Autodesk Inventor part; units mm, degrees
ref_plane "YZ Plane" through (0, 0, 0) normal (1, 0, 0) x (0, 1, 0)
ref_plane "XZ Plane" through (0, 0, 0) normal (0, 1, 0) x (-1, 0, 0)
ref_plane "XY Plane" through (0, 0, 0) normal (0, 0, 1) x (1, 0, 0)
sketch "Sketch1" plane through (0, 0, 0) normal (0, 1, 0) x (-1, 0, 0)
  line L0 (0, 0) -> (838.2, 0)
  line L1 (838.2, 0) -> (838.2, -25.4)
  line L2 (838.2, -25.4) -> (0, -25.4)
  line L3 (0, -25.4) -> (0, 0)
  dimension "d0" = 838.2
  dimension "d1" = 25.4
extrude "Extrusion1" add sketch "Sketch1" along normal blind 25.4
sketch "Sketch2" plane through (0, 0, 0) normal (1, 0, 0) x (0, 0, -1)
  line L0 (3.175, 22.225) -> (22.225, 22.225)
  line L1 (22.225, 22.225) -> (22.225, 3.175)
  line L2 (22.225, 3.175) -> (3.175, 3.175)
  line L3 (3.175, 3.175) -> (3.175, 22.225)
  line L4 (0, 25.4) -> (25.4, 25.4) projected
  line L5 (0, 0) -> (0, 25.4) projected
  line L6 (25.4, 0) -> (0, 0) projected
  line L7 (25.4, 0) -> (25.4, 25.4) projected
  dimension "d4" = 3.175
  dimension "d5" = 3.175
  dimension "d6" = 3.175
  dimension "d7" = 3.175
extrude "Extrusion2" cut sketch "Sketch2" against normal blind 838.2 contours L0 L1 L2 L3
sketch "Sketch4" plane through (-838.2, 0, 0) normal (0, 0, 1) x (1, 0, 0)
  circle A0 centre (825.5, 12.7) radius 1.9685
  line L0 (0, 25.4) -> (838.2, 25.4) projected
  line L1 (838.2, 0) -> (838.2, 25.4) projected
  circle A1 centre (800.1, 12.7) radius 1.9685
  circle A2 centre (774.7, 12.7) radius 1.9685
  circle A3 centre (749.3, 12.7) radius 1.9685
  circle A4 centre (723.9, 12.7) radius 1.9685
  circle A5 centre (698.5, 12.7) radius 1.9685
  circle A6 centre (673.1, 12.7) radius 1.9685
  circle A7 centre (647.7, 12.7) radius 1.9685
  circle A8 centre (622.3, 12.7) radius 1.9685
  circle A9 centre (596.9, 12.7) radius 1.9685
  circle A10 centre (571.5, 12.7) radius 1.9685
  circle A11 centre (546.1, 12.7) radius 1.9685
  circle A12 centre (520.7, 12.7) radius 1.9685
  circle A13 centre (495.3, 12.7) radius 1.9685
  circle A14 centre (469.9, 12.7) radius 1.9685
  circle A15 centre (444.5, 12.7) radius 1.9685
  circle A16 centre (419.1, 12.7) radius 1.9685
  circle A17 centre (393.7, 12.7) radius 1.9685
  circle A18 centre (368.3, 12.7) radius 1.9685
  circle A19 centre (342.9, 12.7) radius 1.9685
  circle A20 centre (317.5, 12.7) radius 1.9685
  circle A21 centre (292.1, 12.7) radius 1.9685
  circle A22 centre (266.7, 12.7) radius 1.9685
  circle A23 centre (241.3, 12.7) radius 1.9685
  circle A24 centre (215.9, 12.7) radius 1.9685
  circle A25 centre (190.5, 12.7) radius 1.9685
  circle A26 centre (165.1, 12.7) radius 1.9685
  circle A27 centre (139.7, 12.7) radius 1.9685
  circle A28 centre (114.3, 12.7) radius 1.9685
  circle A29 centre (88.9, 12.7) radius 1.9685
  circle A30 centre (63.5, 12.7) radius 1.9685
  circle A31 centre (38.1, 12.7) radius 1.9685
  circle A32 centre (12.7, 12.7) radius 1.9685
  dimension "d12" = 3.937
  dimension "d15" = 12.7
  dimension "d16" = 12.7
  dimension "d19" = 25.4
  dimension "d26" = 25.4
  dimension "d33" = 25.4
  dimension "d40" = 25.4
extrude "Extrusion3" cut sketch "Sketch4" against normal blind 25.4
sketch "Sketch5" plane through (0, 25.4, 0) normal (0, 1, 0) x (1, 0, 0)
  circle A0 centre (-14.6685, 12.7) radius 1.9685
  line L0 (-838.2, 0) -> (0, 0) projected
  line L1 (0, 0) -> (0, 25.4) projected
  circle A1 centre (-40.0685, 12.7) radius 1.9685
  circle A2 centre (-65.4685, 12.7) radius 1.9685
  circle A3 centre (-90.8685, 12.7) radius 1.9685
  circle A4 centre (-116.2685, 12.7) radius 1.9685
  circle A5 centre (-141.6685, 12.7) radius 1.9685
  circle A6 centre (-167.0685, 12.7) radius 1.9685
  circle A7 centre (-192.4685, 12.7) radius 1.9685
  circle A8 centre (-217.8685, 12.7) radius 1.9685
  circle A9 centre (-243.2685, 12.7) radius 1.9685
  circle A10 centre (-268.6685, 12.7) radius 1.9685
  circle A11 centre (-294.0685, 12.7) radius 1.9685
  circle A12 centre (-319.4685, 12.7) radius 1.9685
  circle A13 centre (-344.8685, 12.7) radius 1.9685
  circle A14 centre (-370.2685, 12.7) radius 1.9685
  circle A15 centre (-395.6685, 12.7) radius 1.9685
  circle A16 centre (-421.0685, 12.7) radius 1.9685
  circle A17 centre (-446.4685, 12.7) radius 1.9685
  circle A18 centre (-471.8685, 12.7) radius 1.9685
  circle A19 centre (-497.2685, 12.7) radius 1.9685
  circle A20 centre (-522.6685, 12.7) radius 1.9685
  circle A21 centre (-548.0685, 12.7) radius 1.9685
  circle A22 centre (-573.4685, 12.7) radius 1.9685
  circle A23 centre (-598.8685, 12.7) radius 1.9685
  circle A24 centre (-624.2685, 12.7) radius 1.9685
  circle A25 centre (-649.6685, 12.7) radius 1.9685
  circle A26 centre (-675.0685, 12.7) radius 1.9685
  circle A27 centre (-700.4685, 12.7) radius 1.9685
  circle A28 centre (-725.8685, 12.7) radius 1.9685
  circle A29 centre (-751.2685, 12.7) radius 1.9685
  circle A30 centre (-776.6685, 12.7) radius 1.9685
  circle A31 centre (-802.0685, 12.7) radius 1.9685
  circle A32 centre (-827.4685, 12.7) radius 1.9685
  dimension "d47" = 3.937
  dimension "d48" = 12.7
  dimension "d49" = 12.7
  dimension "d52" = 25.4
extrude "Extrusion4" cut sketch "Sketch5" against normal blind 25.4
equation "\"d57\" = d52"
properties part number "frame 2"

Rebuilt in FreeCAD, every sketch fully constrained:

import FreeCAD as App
import Part
import Sketcher
from FreeCAD import Vector
Q = App.Units.Quantity


def add_polygon(sketch, points):
    """Adds a closed chain of lines whose ends are joined by coincident constraints."""
    first, n = sketch.GeometryCount, len(points)
    for a, b in zip(points, points[1:] + points[:1]):
        sketch.addGeometry(Part.LineSegment(App.Vector(*a, 0), App.Vector(*b, 0)), False)
    for i in range(n):
        sketch.addConstraint(Sketcher.Constraint("Coincident", first + i, 2, first + (i + 1) % n, 1))

doc = App.newDocument("Part")
body = doc.addObject("PartDesign::Body", "Body")

sketch1 = body.newObject("Sketcher::SketchObject", "Sketch")
sketch1.AttachmentSupport = (doc.getObject("XZ_Plane"), [""])
sketch1.MapMode = "FlatFace"
add_polygon(sketch1, [(-838, 0), (0, 0), (0, -25), (-838, -25)])
sketch1.addConstraint([
    Sketcher.Constraint("Horizontal", 0),
    Sketcher.Constraint("Vertical", 1),
    Sketcher.Constraint("Horizontal", 2),
    Sketcher.Constraint("Vertical", 3),
    Sketcher.Constraint("Coincident", 0, 2, -1, 1),
    Sketcher.Constraint("DistanceX", 0, 1, 0, 2, Q("33 in")),
    Sketcher.Constraint("DistanceY", 1, 2, 1, 1, Q("1 in")),
])
pad1 = body.newObject("PartDesign::Pad", "Pad")
pad1.Profile = sketch1
pad1.Length = Q("1 in")
pad1.Reversed = True

sketch2 = body.newObject("Sketcher::SketchObject", "Sketch001")
sketch2.AttachmentSupport = (doc.getObject("YZ_Plane"), [""])
sketch2.MapMode = "FlatFace"
add_polygon(sketch2, [(22, -22), (22, -3), (3, -3), (3, -22)])
sketch2.addConstraint([
    Sketcher.Constraint("Vertical", 0),
    Sketcher.Constraint("Horizontal", 1),
    Sketcher.Constraint("Vertical", 2),
    Sketcher.Constraint("Horizontal", 3),
    Sketcher.Constraint("Equal", 3, 0),
    Sketcher.Constraint("DistanceY", 0, 2, -1, 1, Q("0.125 in")),
    Sketcher.Constraint("DistanceX", -1, 1, 1, 2, Q("0.125 in")),
    Sketcher.Constraint("DistanceX", 1, 2, 1, 1, Q("0.75 in")),
])
pocket1 = body.newObject("PartDesign::Pocket", "Pocket")
pocket1.Profile = sketch2
pocket1.Length = Q("33 in")

sketch3 = body.newObject("Sketcher::SketchObject", "Sketch002")
sketch3.AttachmentSupport = (doc.getObject("XY_Plane"), [""])
sketch3.MapMode = "FlatFace"
sketch3.addGeometry([
    Part.Circle(Vector(-12.7, 12.7, 0), Vector(0, 0, 1), 2),
    Part.Circle(Vector(-38.1, 12.7, 0), Vector(0, 0, 1), 2),
    Part.Circle(Vector(-63.5, 12.7, 0), Vector(0, 0, 1), 2),
    Part.Circle(Vector(-88.9, 12.7, 0), Vector(0, 0, 1), 2),
    Part.Circle(Vector(-114.3, 12.7, 0), Vector(0, 0, 1), 2),
    Part.Circle(Vector(-139.7, 12.7, 0), Vector(0, 0, 1), 2),
    Part.Circle(Vector(-165.1, 12.7, 0), Vector(0, 0, 1), 2),
    Part.Circle(Vector(-190.5, 12.7, 0), Vector(0, 0, 1), 2),
    Part.Circle(Vector(-215.9, 12.7, 0), Vector(0, 0, 1), 2),
    Part.Circle(Vector(-241.3, 12.7, 0), Vector(0, 0, 1), 2),
    Part.Circle(Vector(-266.7, 12.7, 0), Vector(0, 0, 1), 2),
    Part.Circle(Vector(-292.1, 12.7, 0), Vector(0, 0, 1), 2),
    Part.Circle(Vector(-317.5, 12.7, 0), Vector(0, 0, 1), 2),
    Part.Circle(Vector(-342.9, 12.7, 0), Vector(0, 0, 1), 2),
    Part.Circle(Vector(-368.3, 12.7, 0), Vector(0, 0, 1), 2),
    Part.Circle(Vector(-393.7, 12.7, 0), Vector(0, 0, 1), 2),
    Part.Circle(Vector(-419.1, 12.7, 0), Vector(0, 0, 1), 2),
    Part.Circle(Vector(-444.5, 12.7, 0), Vector(0, 0, 1), 2),
    Part.Circle(Vector(-469.9, 12.7, 0), Vector(0, 0, 1), 2),
    Part.Circle(Vector(-495.3, 12.7, 0), Vector(0, 0, 1), 2),
    Part.Circle(Vector(-520.7, 12.7, 0), Vector(0, 0, 1), 2),
    Part.Circle(Vector(-546.1, 12.7, 0), Vector(0, 0, 1), 2),
    Part.Circle(Vector(-571.5, 12.7, 0), Vector(0, 0, 1), 2),
    Part.Circle(Vector(-596.9, 12.7, 0), Vector(0, 0, 1), 2),
    Part.Circle(Vector(-622.3, 12.7, 0), Vector(0, 0, 1), 2),
    Part.Circle(Vector(-647.7, 12.7, 0), Vector(0, 0, 1), 2),
    Part.Circle(Vector(-673.1, 12.7, 0), Vector(0, 0, 1), 2),
    Part.Circle(Vector(-698.5, 12.7, 0), Vector(0, 0, 1), 2),
    Part.Circle(Vector(-723.9, 12.7, 0), Vector(0, 0, 1), 2),
    Part.Circle(Vector(-749.3, 12.7, 0), Vector(0, 0, 1), 2),
    Part.Circle(Vector(-774.7, 12.7, 0), Vector(0, 0, 1), 2),
    Part.Circle(Vector(-800.1, 12.7, 0), Vector(0, 0, 1), 2),
    Part.Circle(Vector(-825.5, 12.7, 0), Vector(0, 0, 1), 2),
], False)
sketch3.addConstraint([
    Sketcher.Constraint("Equal", 0, 1),
    Sketcher.Constraint("Equal", 1, 2),
    Sketcher.Constraint("Equal", 2, 3),
    Sketcher.Constraint("Equal", 3, 4),
    Sketcher.Constraint("Equal", 4, 5),
    Sketcher.Constraint("Equal", 5, 6),
    Sketcher.Constraint("Equal", 6, 7),
    Sketcher.Constraint("Equal", 7, 8),
    Sketcher.Constraint("Equal", 8, 9),
    Sketcher.Constraint("Equal", 9, 10),
    Sketcher.Constraint("Equal", 10, 11),
    Sketcher.Constraint("Equal", 11, 12),
    Sketcher.Constraint("Equal", 12, 13),
    Sketcher.Constraint("Equal", 13, 14),
    Sketcher.Constraint("Equal", 14, 15),
    Sketcher.Constraint("Equal", 15, 16),
    Sketcher.Constraint("Equal", 16, 17),
    Sketcher.Constraint("Equal", 17, 18),
    Sketcher.Constraint("Equal", 18, 19),
    Sketcher.Constraint("Equal", 19, 20),
    Sketcher.Constraint("Equal", 20, 21),
    Sketcher.Constraint("Equal", 21, 22),
    Sketcher.Constraint("Equal", 22, 23),
    Sketcher.Constraint("Equal", 23, 24),
    Sketcher.Constraint("Equal", 24, 25),
    Sketcher.Constraint("Equal", 25, 26),
    Sketcher.Constraint("Equal", 26, 27),
    Sketcher.Constraint("Equal", 27, 28),
    Sketcher.Constraint("Equal", 28, 29),
    Sketcher.Constraint("Equal", 29, 30),
    Sketcher.Constraint("Equal", 30, 31),
    Sketcher.Constraint("Equal", 31, 32),
    Sketcher.Constraint("Horizontal", 0, 3, 1, 3),
    Sketcher.Constraint("Horizontal", 1, 3, 2, 3),
    Sketcher.Constraint("Horizontal", 2, 3, 3, 3),
    Sketcher.Constraint("Horizontal", 3, 3, 4, 3),
    Sketcher.Constraint("Horizontal", 4, 3, 5, 3),
    Sketcher.Constraint("Horizontal", 5, 3, 6, 3),
    Sketcher.Constraint("Horizontal", 6, 3, 7, 3),
    Sketcher.Constraint("Horizontal", 7, 3, 8, 3),
    Sketcher.Constraint("Horizontal", 8, 3, 9, 3),
    Sketcher.Constraint("Horizontal", 9, 3, 10, 3),
    Sketcher.Constraint("Horizontal", 10, 3, 11, 3),
    Sketcher.Constraint("Horizontal", 11, 3, 12, 3),
    Sketcher.Constraint("Horizontal", 12, 3, 13, 3),
    Sketcher.Constraint("Horizontal", 13, 3, 14, 3),
    Sketcher.Constraint("Horizontal", 14, 3, 15, 3),
    Sketcher.Constraint("Horizontal", 15, 3, 16, 3),
    Sketcher.Constraint("Horizontal", 16, 3, 17, 3),
    Sketcher.Constraint("Horizontal", 17, 3, 18, 3),
    Sketcher.Constraint("Horizontal", 18, 3, 19, 3),
    Sketcher.Constraint("Horizontal", 19, 3, 20, 3),
    Sketcher.Constraint("Horizontal", 20, 3, 21, 3),
    Sketcher.Constraint("Horizontal", 21, 3, 22, 3),
    Sketcher.Constraint("Horizontal", 22, 3, 23, 3),
    Sketcher.Constraint("Horizontal", 23, 3, 24, 3),
    Sketcher.Constraint("Horizontal", 24, 3, 25, 3),
    Sketcher.Constraint("Horizontal", 25, 3, 26, 3),
    Sketcher.Constraint("Horizontal", 26, 3, 27, 3),
    Sketcher.Constraint("Horizontal", 27, 3, 28, 3),
    Sketcher.Constraint("Horizontal", 28, 3, 29, 3),
    Sketcher.Constraint("Horizontal", 29, 3, 30, 3),
    Sketcher.Constraint("Horizontal", 30, 3, 31, 3),
    Sketcher.Constraint("Horizontal", 31, 3, 32, 3),
    Sketcher.Constraint("Diameter", 0, Q("0.155 in")),
    Sketcher.Constraint("DistanceX", 1, 3, 0, 3, Q("1 in")),
    Sketcher.Constraint("DistanceX", 2, 3, 1, 3, Q("1 in")),
    Sketcher.Constraint("DistanceX", 3, 3, 2, 3, Q("1 in")),
    Sketcher.Constraint("DistanceX", 4, 3, 3, 3, Q("1 in")),
    Sketcher.Constraint("DistanceX", 5, 3, 4, 3, Q("1 in")),
    Sketcher.Constraint("DistanceX", 6, 3, 5, 3, Q("1 in")),
    Sketcher.Constraint("DistanceX", 7, 3, 6, 3, Q("1 in")),
    Sketcher.Constraint("DistanceX", 8, 3, 7, 3, Q("1 in")),
    Sketcher.Constraint("DistanceX", 9, 3, 8, 3, Q("1 in")),
    Sketcher.Constraint("DistanceX", 10, 3, 9, 3, Q("1 in")),
    Sketcher.Constraint("DistanceX", 11, 3, 10, 3, Q("1 in")),
    Sketcher.Constraint("DistanceX", 12, 3, 11, 3, Q("1 in")),
    Sketcher.Constraint("DistanceX", 13, 3, 12, 3, Q("1 in")),
    Sketcher.Constraint("DistanceX", 14, 3, 13, 3, Q("1 in")),
    Sketcher.Constraint("DistanceX", 15, 3, 14, 3, Q("1 in")),
    Sketcher.Constraint("DistanceX", 16, 3, 15, 3, Q("1 in")),
    Sketcher.Constraint("DistanceX", 17, 3, 16, 3, Q("1 in")),
    Sketcher.Constraint("DistanceX", 18, 3, 17, 3, Q("1 in")),
    Sketcher.Constraint("DistanceX", 19, 3, 18, 3, Q("1 in")),
    Sketcher.Constraint("DistanceX", 20, 3, 19, 3, Q("1 in")),
    Sketcher.Constraint("DistanceX", 21, 3, 20, 3, Q("1 in")),
    Sketcher.Constraint("DistanceX", 22, 3, 21, 3, Q("1 in")),
    Sketcher.Constraint("DistanceX", 23, 3, 22, 3, Q("1 in")),
    Sketcher.Constraint("DistanceX", 24, 3, 23, 3, Q("1 in")),
    Sketcher.Constraint("DistanceX", 25, 3, 24, 3, Q("1 in")),
    Sketcher.Constraint("DistanceX", 26, 3, 25, 3, Q("1 in")),
    Sketcher.Constraint("DistanceX", 27, 3, 26, 3, Q("1 in")),
    Sketcher.Constraint("DistanceX", 28, 3, 27, 3, Q("1 in")),
    Sketcher.Constraint("DistanceX", 29, 3, 28, 3, Q("1 in")),
    Sketcher.Constraint("DistanceX", 30, 3, 29, 3, Q("1 in")),
    Sketcher.Constraint("DistanceX", 31, 3, 30, 3, Q("1 in")),
    Sketcher.Constraint("DistanceX", 32, 3, 31, 3, Q("1 in")),
    Sketcher.Constraint("DistanceX", 0, 3, -1, 1, Q("0.5 in")),
    Sketcher.Constraint("DistanceY", -1, 1, 0, 3, Q("0.5 in")),
])
pocket2 = body.newObject("PartDesign::Pocket", "Pocket001")
pocket2.Profile = sketch3
pocket2.Length = Q("1 in")

sketch4 = body.newObject("Sketcher::SketchObject", "Sketch003")
sketch4.AttachmentSupport = (doc.getObject("XZ_Plane"), [""])
sketch4.MapMode = "FlatFace"
sketch4.AttachmentOffset = App.Placement(Vector(0, 0, -1 * 25.4), App.Rotation())
sketch4.addGeometry([
    Part.Circle(Vector(-14.7, -12.7, 0), Vector(0, 0, 1), 2),
    Part.Circle(Vector(-40.1, -12.7, 0), Vector(0, 0, 1), 2),
    Part.Circle(Vector(-65.5, -12.7, 0), Vector(0, 0, 1), 2),
    Part.Circle(Vector(-90.9, -12.7, 0), Vector(0, 0, 1), 2),
    Part.Circle(Vector(-116.3, -12.7, 0), Vector(0, 0, 1), 2),
    Part.Circle(Vector(-141.7, -12.7, 0), Vector(0, 0, 1), 2),
    Part.Circle(Vector(-167.1, -12.7, 0), Vector(0, 0, 1), 2),
    Part.Circle(Vector(-192.5, -12.7, 0), Vector(0, 0, 1), 2),
    Part.Circle(Vector(-217.9, -12.7, 0), Vector(0, 0, 1), 2),
    Part.Circle(Vector(-243.3, -12.7, 0), Vector(0, 0, 1), 2),
    Part.Circle(Vector(-268.7, -12.7, 0), Vector(0, 0, 1), 2),
    Part.Circle(Vector(-294.1, -12.7, 0), Vector(0, 0, 1), 2),
    Part.Circle(Vector(-319.5, -12.7, 0), Vector(0, 0, 1), 2),
    Part.Circle(Vector(-344.9, -12.7, 0), Vector(0, 0, 1), 2),
    Part.Circle(Vector(-370.3, -12.7, 0), Vector(0, 0, 1), 2),
    Part.Circle(Vector(-395.7, -12.7, 0), Vector(0, 0, 1), 2),
    Part.Circle(Vector(-421.1, -12.7, 0), Vector(0, 0, 1), 2),
    Part.Circle(Vector(-446.5, -12.7, 0), Vector(0, 0, 1), 2),
    Part.Circle(Vector(-471.9, -12.7, 0), Vector(0, 0, 1), 2),
    Part.Circle(Vector(-497.3, -12.7, 0), Vector(0, 0, 1), 2),
    Part.Circle(Vector(-522.7, -12.7, 0), Vector(0, 0, 1), 2),
    Part.Circle(Vector(-548.1, -12.7, 0), Vector(0, 0, 1), 2),
    Part.Circle(Vector(-573.5, -12.7, 0), Vector(0, 0, 1), 2),
    Part.Circle(Vector(-598.9, -12.7, 0), Vector(0, 0, 1), 2),
    Part.Circle(Vector(-624.3, -12.7, 0), Vector(0, 0, 1), 2),
    Part.Circle(Vector(-649.7, -12.7, 0), Vector(0, 0, 1), 2),
    Part.Circle(Vector(-675.1, -12.7, 0), Vector(0, 0, 1), 2),
    Part.Circle(Vector(-700.5, -12.7, 0), Vector(0, 0, 1), 2),
    Part.Circle(Vector(-725.9, -12.7, 0), Vector(0, 0, 1), 2),
    Part.Circle(Vector(-751.3, -12.7, 0), Vector(0, 0, 1), 2),
    Part.Circle(Vector(-776.7, -12.7, 0), Vector(0, 0, 1), 2),
    Part.Circle(Vector(-802.1, -12.7, 0), Vector(0, 0, 1), 2),
    Part.Circle(Vector(-827.5, -12.7, 0), Vector(0, 0, 1), 2),
], False)
sketch4.addConstraint([
    Sketcher.Constraint("Equal", 0, 1),
    Sketcher.Constraint("Equal", 1, 2),
    Sketcher.Constraint("Equal", 2, 3),
    Sketcher.Constraint("Equal", 3, 4),
    Sketcher.Constraint("Equal", 4, 5),
    Sketcher.Constraint("Equal", 5, 6),
    Sketcher.Constraint("Equal", 6, 7),
    Sketcher.Constraint("Equal", 7, 8),
    Sketcher.Constraint("Equal", 8, 9),
    Sketcher.Constraint("Equal", 9, 10),
    Sketcher.Constraint("Equal", 10, 11),
    Sketcher.Constraint("Equal", 11, 12),
    Sketcher.Constraint("Equal", 12, 13),
    Sketcher.Constraint("Equal", 13, 14),
    Sketcher.Constraint("Equal", 14, 15),
    Sketcher.Constraint("Equal", 15, 16),
    Sketcher.Constraint("Equal", 16, 17),
    Sketcher.Constraint("Equal", 17, 18),
    Sketcher.Constraint("Equal", 18, 19),
    Sketcher.Constraint("Equal", 19, 20),
    Sketcher.Constraint("Equal", 20, 21),
    Sketcher.Constraint("Equal", 21, 22),
    Sketcher.Constraint("Equal", 22, 23),
    Sketcher.Constraint("Equal", 23, 24),
    Sketcher.Constraint("Equal", 24, 25),
    Sketcher.Constraint("Equal", 25, 26),
    Sketcher.Constraint("Equal", 26, 27),
    Sketcher.Constraint("Equal", 27, 28),
    Sketcher.Constraint("Equal", 28, 29),
    Sketcher.Constraint("Equal", 29, 30),
    Sketcher.Constraint("Equal", 30, 31),
    Sketcher.Constraint("Equal", 31, 32),
    Sketcher.Constraint("Horizontal", 0, 3, 1, 3),
    Sketcher.Constraint("Horizontal", 1, 3, 2, 3),
    Sketcher.Constraint("Horizontal", 2, 3, 3, 3),
    Sketcher.Constraint("Horizontal", 3, 3, 4, 3),
    Sketcher.Constraint("Horizontal", 4, 3, 5, 3),
    Sketcher.Constraint("Horizontal", 5, 3, 6, 3),
    Sketcher.Constraint("Horizontal", 6, 3, 7, 3),
    Sketcher.Constraint("Horizontal", 7, 3, 8, 3),
    Sketcher.Constraint("Horizontal", 8, 3, 9, 3),
    Sketcher.Constraint("Horizontal", 9, 3, 10, 3),
    Sketcher.Constraint("Horizontal", 10, 3, 11, 3),
    Sketcher.Constraint("Horizontal", 11, 3, 12, 3),
    Sketcher.Constraint("Horizontal", 12, 3, 13, 3),
    Sketcher.Constraint("Horizontal", 13, 3, 14, 3),
    Sketcher.Constraint("Horizontal", 14, 3, 15, 3),
    Sketcher.Constraint("Horizontal", 15, 3, 16, 3),
    Sketcher.Constraint("Horizontal", 16, 3, 17, 3),
    Sketcher.Constraint("Horizontal", 17, 3, 18, 3),
    Sketcher.Constraint("Horizontal", 18, 3, 19, 3),
    Sketcher.Constraint("Horizontal", 19, 3, 20, 3),
    Sketcher.Constraint("Horizontal", 20, 3, 21, 3),
    Sketcher.Constraint("Horizontal", 21, 3, 22, 3),
    Sketcher.Constraint("Horizontal", 22, 3, 23, 3),
    Sketcher.Constraint("Horizontal", 23, 3, 24, 3),
    Sketcher.Constraint("Horizontal", 24, 3, 25, 3),
    Sketcher.Constraint("Horizontal", 25, 3, 26, 3),
    Sketcher.Constraint("Horizontal", 26, 3, 27, 3),
    Sketcher.Constraint("Horizontal", 27, 3, 28, 3),
    Sketcher.Constraint("Horizontal", 28, 3, 29, 3),
    Sketcher.Constraint("Horizontal", 29, 3, 30, 3),
    Sketcher.Constraint("Horizontal", 30, 3, 31, 3),
    Sketcher.Constraint("Horizontal", 31, 3, 32, 3),
    Sketcher.Constraint("Diameter", 0, Q("0.155 in")),
    Sketcher.Constraint("DistanceX", 1, 3, 0, 3, Q("1 in")),
    Sketcher.Constraint("DistanceX", 2, 3, 1, 3, Q("1 in")),
    Sketcher.Constraint("DistanceX", 3, 3, 2, 3, Q("1 in")),
    Sketcher.Constraint("DistanceX", 4, 3, 3, 3, Q("1 in")),
    Sketcher.Constraint("DistanceX", 5, 3, 4, 3, Q("1 in")),
    Sketcher.Constraint("DistanceX", 6, 3, 5, 3, Q("1 in")),
    Sketcher.Constraint("DistanceX", 7, 3, 6, 3, Q("1 in")),
    Sketcher.Constraint("DistanceX", 8, 3, 7, 3, Q("1 in")),
    Sketcher.Constraint("DistanceX", 9, 3, 8, 3, Q("1 in")),
    Sketcher.Constraint("DistanceX", 10, 3, 9, 3, Q("1 in")),
    Sketcher.Constraint("DistanceX", 11, 3, 10, 3, Q("1 in")),
    Sketcher.Constraint("DistanceX", 12, 3, 11, 3, Q("1 in")),
    Sketcher.Constraint("DistanceX", 13, 3, 12, 3, Q("1 in")),
    Sketcher.Constraint("DistanceX", 14, 3, 13, 3, Q("1 in")),
    Sketcher.Constraint("DistanceX", 15, 3, 14, 3, Q("1 in")),
    Sketcher.Constraint("DistanceX", 16, 3, 15, 3, Q("1 in")),
    Sketcher.Constraint("DistanceX", 17, 3, 16, 3, Q("1 in")),
    Sketcher.Constraint("DistanceX", 18, 3, 17, 3, Q("1 in")),
    Sketcher.Constraint("DistanceX", 19, 3, 18, 3, Q("1 in")),
    Sketcher.Constraint("DistanceX", 20, 3, 19, 3, Q("1 in")),
    Sketcher.Constraint("DistanceX", 21, 3, 20, 3, Q("1 in")),
    Sketcher.Constraint("DistanceX", 22, 3, 21, 3, Q("1 in")),
    Sketcher.Constraint("DistanceX", 23, 3, 22, 3, Q("1 in")),
    Sketcher.Constraint("DistanceX", 24, 3, 23, 3, Q("1 in")),
    Sketcher.Constraint("DistanceX", 25, 3, 24, 3, Q("1 in")),
    Sketcher.Constraint("DistanceX", 26, 3, 25, 3, Q("1 in")),
    Sketcher.Constraint("DistanceX", 27, 3, 26, 3, Q("1 in")),
    Sketcher.Constraint("DistanceX", 28, 3, 27, 3, Q("1 in")),
    Sketcher.Constraint("DistanceX", 29, 3, 28, 3, Q("1 in")),
    Sketcher.Constraint("DistanceX", 30, 3, 29, 3, Q("1 in")),
    Sketcher.Constraint("DistanceX", 31, 3, 30, 3, Q("1 in")),
    Sketcher.Constraint("DistanceX", 32, 3, 31, 3, Q("1 in")),
    Sketcher.Constraint("DistanceY", 0, 3, -1, 1, Q("0.5 in")),
    Sketcher.Constraint("DistanceX", 0, 3, -1, 1, Q("0.5775 in")),
])
pocket3 = body.newObject("PartDesign::Pocket", "Pocket002")
pocket3.Profile = sketch4
pocket3.Length = Q("1 in")
pocket3.Reversed = True

doc.recompute()
